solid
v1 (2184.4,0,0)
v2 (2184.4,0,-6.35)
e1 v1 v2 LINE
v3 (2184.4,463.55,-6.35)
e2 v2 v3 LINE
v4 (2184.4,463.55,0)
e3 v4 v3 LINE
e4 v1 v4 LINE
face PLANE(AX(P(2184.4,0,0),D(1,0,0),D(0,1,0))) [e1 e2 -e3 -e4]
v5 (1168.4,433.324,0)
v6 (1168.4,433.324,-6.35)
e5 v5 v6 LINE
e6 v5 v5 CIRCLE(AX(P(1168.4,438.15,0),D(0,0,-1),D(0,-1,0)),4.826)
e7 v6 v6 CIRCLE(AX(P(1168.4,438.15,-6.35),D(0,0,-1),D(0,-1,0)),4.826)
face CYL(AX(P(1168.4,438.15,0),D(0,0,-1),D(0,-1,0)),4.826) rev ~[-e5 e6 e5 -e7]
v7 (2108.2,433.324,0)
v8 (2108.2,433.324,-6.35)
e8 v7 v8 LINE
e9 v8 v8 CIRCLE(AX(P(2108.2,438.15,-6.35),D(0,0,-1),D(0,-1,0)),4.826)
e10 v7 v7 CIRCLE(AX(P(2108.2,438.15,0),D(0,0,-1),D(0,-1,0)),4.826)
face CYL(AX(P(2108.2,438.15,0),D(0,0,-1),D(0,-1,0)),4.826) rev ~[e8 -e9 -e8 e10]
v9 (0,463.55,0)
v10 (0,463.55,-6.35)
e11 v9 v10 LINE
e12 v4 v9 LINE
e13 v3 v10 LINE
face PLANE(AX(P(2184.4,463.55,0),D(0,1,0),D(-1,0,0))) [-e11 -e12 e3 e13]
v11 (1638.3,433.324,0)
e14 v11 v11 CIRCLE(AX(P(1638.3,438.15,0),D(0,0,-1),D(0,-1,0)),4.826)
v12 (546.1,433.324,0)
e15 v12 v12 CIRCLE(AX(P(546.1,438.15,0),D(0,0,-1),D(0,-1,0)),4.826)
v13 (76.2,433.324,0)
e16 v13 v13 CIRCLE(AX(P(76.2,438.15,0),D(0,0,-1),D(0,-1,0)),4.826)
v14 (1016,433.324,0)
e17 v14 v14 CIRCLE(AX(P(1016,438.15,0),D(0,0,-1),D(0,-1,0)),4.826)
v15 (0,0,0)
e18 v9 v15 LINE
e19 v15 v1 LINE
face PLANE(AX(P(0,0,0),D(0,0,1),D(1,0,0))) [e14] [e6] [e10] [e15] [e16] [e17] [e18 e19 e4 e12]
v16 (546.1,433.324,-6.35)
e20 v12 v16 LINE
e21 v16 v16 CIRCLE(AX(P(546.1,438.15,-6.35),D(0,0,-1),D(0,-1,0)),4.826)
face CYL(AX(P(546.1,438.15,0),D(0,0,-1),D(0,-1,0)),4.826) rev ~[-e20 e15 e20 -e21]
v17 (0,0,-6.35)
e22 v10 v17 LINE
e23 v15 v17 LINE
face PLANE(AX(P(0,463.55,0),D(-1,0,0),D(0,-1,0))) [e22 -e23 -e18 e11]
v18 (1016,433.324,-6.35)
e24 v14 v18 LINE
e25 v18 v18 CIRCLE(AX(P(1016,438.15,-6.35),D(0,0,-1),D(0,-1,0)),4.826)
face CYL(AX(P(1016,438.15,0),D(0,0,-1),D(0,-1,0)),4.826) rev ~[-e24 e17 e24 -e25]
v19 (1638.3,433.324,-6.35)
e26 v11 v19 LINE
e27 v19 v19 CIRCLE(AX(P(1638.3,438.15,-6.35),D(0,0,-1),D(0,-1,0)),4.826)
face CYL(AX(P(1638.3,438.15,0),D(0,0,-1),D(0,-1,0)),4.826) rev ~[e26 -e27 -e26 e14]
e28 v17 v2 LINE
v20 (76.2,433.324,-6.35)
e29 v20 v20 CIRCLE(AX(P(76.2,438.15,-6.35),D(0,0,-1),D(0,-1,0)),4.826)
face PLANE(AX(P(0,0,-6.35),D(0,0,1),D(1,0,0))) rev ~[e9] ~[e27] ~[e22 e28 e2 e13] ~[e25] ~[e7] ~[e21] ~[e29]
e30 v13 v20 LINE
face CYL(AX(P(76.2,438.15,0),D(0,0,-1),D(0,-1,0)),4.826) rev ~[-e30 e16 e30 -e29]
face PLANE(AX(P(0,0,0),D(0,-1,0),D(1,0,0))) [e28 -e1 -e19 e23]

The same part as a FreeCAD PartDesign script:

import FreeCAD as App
import Part
import Sketcher
Q = App.Units.Quantity


def add_polygon(sketch, points):
    """Adds a closed chain of lines whose ends are joined by coincident constraints."""
    first, n = sketch.GeometryCount, len(points)
    for a, b in zip(points, points[1:] + points[:1]):
        sketch.addGeometry(Part.LineSegment(App.Vector(*a, 0), App.Vector(*b, 0)), False)
    for i in range(n):
        sketch.addConstraint(Sketcher.Constraint("Coincident", first + i, 2, first + (i + 1) % n, 1))

doc = App.newDocument("Part")
params = doc.addObject("Spreadsheet::Sheet", "Params")
for row, (alias, value) in enumerate([
    ("sketch1_width", "86 in"),
    ("sketch1_height", "18.25 in"),
    ("pad1_length", "0.25 in"),
    ("sketch2_diameter", "0.38 in"),
    ("hole_diameter", "0.38 in"),
], start=1):
    params.set(f"A{row}", alias)
    params.set(f"B{row}", "=" + value)
    params.setAlias(f"B{row}", alias)

body = doc.addObject("PartDesign::Body", "Body")

# Sketch on XY plane
sketch1 = doc.addObject("Sketcher::SketchObject", "Sketch")
body.addObject(sketch1)
sketch1.AttachmentSupport = (doc.XY_Plane, [""])
sketch1.MapMode = "FlatFace"
add_polygon(sketch1, [(0, 464), (0, 0), (2184, 0), (2184, 464)])  # lines 0-3
sketch1.addConstraint(Sketcher.Constraint("Vertical", 0))
sketch1.addConstraint(Sketcher.Constraint("Horizontal", 1))
sketch1.addConstraint(Sketcher.Constraint("Vertical", 2))
sketch1.addConstraint(Sketcher.Constraint("Horizontal", 3))
sketch1.addConstraint(Sketcher.Constraint("Coincident", 0, 2, -1, 1))
sketch1.addConstraint(Sketcher.Constraint("DistanceX", 1, 1, 1, 2, Q("86 in")))
sketch1.addConstraint(Sketcher.Constraint("DistanceY", 0, 2, 0, 1, Q("18.25 in")))
sketch1.setExpression("Constraints[9]", "Params.sketch1_width")
sketch1.setExpression("Constraints[10]", "Params.sketch1_height")
pad1 = doc.addObject("PartDesign::Pad", "Pad")
body.addObject(pad1)
pad1.Profile = sketch1
pad1.setExpression("Length", "Params.pad1_length")
pad1.Reversed = True

# Sketch on XY plane
sketch2 = doc.addObject("Sketcher::SketchObject", "Sketch001")
body.addObject(sketch2)
sketch2.AttachmentSupport = (doc.XY_Plane, [""])
sketch2.MapMode = "FlatFace"
sketch2.addGeometry(Part.Circle(App.Vector(76.2, 438.1, 0), App.Vector(0, 0, 1), 4.8), False)
sketch2.addGeometry(Part.Circle(App.Vector(546.1, 438.1, 0), App.Vector(0, 0, 1), 4.8), False)
sketch2.addGeometry(Part.Circle(App.Vector(1016, 438.1, 0), App.Vector(0, 0, 1), 4.8), False)
sketch2.addGeometry(Part.Circle(App.Vector(1168.4, 438.1, 0), App.Vector(0, 0, 1), 4.8), False)
sketch2.addGeometry(Part.Circle(App.Vector(1638.3, 438.1, 0), App.Vector(0, 0, 1), 4.8), False)
sketch2.addGeometry(Part.Circle(App.Vector(2108.2, 438.1, 0), App.Vector(0, 0, 1), 4.8), False)
sketch2.addConstraint(Sketcher.Constraint("Equal", 0, 1))
sketch2.addConstraint(Sketcher.Constraint("Equal", 1, 2))
sketch2.addConstraint(Sketcher.Constraint("Equal", 2, 3))
sketch2.addConstraint(Sketcher.Constraint("Equal", 3, 4))
sketch2.addConstraint(Sketcher.Constraint("Equal", 4, 5))
sketch2.addConstraint(Sketcher.Constraint("Horizontal", 0, 3, 1, 3))
sketch2.addConstraint(Sketcher.Constraint("Horizontal", 1, 3, 2, 3))
sketch2.addConstraint(Sketcher.Constraint("Horizontal", 2, 3, 3, 3))
sketch2.addConstraint(Sketcher.Constraint("Horizontal", 3, 3, 4, 3))
sketch2.addConstraint(Sketcher.Constraint("Horizontal", 4, 3, 5, 3))
sketch2.addConstraint(Sketcher.Constraint("Diameter", 0, Q("0.38 in")))
sketch2.addConstraint(Sketcher.Constraint("DistanceX", -1, 1, 0, 3, Q("3 in")))
sketch2.addConstraint(Sketcher.Constraint("DistanceX", -1, 1, 2, 3, Q("40 in")))
sketch2.addConstraint(Sketcher.Constraint("DistanceX", -1, 1, 3, 3, Q("46 in")))
sketch2.addConstraint(Sketcher.Constraint("DistanceX", -1, 1, 5, 3, Q("83 in")))
sketch2.addConstraint(Sketcher.Constraint("DistanceX", 1, 3, 4, 3, Q("43 in")))
sketch2.addConstraint(Sketcher.Constraint("DistanceX", -1, 1, 1, 3, Q("21.5 in")))
sketch2.addConstraint(Sketcher.Constraint("DistanceY", -1, 1, 0, 3, Q("17.25 in")))
sketch2.setExpression("Constraints[10]", "Params.sketch2_diameter")
doc.recompute()
hole = doc.addObject("PartDesign::Hole", "Hole")
body.addObject(hole)
hole.Profile = sketch2
hole.ThreadType = "None"
hole.setExpression("Diameter", "Params.hole_diameter")
hole.DepthType = "ThroughAll"

doc.recompute()
